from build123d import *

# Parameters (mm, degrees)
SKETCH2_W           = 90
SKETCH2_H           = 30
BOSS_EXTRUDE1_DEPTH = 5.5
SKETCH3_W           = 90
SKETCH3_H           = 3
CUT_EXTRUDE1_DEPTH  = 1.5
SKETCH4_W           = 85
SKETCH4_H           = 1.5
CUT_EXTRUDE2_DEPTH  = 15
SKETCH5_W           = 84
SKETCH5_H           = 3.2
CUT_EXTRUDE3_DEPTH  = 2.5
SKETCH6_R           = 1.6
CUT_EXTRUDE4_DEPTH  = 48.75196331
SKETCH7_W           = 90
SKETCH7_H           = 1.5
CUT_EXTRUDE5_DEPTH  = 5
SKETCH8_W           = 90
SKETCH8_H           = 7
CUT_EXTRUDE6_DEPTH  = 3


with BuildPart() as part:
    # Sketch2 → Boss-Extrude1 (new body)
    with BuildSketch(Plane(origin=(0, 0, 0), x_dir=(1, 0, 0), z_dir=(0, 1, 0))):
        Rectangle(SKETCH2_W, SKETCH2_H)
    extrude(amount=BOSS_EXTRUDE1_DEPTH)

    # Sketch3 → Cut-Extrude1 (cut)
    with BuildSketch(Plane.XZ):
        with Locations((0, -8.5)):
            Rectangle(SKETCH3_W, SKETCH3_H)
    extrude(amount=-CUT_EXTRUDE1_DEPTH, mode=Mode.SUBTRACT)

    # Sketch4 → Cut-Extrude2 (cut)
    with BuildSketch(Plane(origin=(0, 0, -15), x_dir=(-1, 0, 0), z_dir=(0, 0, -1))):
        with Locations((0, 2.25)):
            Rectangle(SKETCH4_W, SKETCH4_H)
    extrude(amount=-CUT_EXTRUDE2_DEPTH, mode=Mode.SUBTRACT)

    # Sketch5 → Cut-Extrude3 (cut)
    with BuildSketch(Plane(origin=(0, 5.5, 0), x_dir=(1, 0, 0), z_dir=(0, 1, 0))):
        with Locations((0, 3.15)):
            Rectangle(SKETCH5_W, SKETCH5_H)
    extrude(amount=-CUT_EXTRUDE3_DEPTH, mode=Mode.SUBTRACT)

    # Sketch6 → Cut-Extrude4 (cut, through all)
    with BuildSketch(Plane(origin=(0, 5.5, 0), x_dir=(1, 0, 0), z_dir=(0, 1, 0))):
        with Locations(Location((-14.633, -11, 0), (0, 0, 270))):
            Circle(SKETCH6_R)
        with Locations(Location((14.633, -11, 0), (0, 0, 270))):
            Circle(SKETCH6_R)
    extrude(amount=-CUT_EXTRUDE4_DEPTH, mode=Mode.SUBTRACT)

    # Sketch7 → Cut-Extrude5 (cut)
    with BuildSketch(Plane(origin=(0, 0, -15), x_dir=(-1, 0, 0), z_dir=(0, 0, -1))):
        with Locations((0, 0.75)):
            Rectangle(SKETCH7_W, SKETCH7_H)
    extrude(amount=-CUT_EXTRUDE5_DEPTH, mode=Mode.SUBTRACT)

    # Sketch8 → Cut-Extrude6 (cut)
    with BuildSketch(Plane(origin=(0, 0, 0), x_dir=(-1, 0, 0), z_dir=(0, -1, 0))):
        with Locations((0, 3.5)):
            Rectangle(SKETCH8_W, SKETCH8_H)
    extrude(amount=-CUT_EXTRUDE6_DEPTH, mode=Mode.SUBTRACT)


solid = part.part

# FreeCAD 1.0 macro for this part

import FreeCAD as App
import Part
import Sketcher


def add_polygon(sketch, points):
    """Adds a closed chain of lines whose ends are joined by coincident constraints."""
    first, n = sketch.GeometryCount, len(points)
    for a, b in zip(points, points[1:] + points[:1]):
        sketch.addGeometry(Part.LineSegment(App.Vector(*a, 0), App.Vector(*b, 0)), False)
    for i in range(n):
        sketch.addConstraint(Sketcher.Constraint("Coincident", first + i, 2, first + (i + 1) % n, 1))

doc = App.newDocument("Part")
body = doc.addObject("PartDesign::Body", "Body")

sketch1 = body.newObject("Sketcher::SketchObject", "Sketch")
sketch1.AttachmentSupport = (doc.getObject("XZ_Plane"), [""])
sketch1.MapMode = "FlatFace"
add_polygon(sketch1, [(-45, -15), (-45, 15), (45, 15), (45, -15)])
sketch1.addConstraint([
    Sketcher.Constraint("Vertical", 0),
    Sketcher.Constraint("Horizontal", 1),
    Sketcher.Constraint("Vertical", 2),
    Sketcher.Constraint("Horizontal", 3),
    Sketcher.Constraint("Symmetric", 0, 2, 2, 2, -1, 1),
    Sketcher.Constraint("DistanceX", 1, 1, 1, 2, 90.0),
    Sketcher.Constraint("DistanceY", 0, 1, 0, 2, 30.0),
])
pad1 = body.newObject("PartDesign::Pad", "Pad")
pad1.Profile = sketch1
pad1.Length = 5.5
pad1.Reversed = True

sketch2 = body.newObject("Sketcher::SketchObject", "Sketch001")
sketch2.AttachmentSupport = (doc.getObject("XZ_Plane"), [""])
sketch2.MapMode = "FlatFace"
add_polygon(sketch2, [(-45, -7), (-45, -10), (45, -10), (45, -7)])
sketch2.addConstraint([
    Sketcher.Constraint("Vertical", 0),
    Sketcher.Constraint("Horizontal", 1),
    Sketcher.Constraint("Vertical", 2),
    Sketcher.Constraint("Horizontal", 3),
    Sketcher.Constraint("DistanceX", 1, 1, 1, 2, 90.0),
    Sketcher.Constraint("DistanceY", 0, 2, 0, 1, 3.0),
    Sketcher.Constraint("DistanceX", 0, 2, -1, 1, 45.0),
    Sketcher.Constraint("DistanceY", 0, 2, -1, 1, 10.0),
])
pocket1 = body.newObject("PartDesign::Pocket", "Pocket")
pocket1.Profile = sketch2
pocket1.Length = 1.5

sketch3 = body.newObject("Sketcher::SketchObject", "Sketch002")
sketch3.AttachmentSupport = (doc.getObject("XY_Plane"), [""])
sketch3.MapMode = "FlatFace"
sketch3.AttachmentOffset = App.Placement(App.Vector(0, 0, -15), App.Rotation())
add_polygon(sketch3, [(42.5, 3), (42.5, 1.5), (-42.5, 1.5), (-42.5, 3)])
sketch3.addConstraint([
    Sketcher.Constraint("Vertical", 0),
    Sketcher.Constraint("Horizontal", 1),
    Sketcher.Constraint("Vertical", 2),
    Sketcher.Constraint("Horizontal", 3),
    Sketcher.Constraint("DistanceX", 1, 2, 1, 1, 85.0),
    Sketcher.Constraint("DistanceY", 0, 2, 0, 1, 1.5),
    Sketcher.Constraint("DistanceY", -1, 1, 2, 2, 3.0),
    Sketcher.Constraint("DistanceX", -1, 1, 0, 2, 42.5),
])
pocket2 = body.newObject("PartDesign::Pocket", "Pocket001")
pocket2.Profile = sketch3
pocket2.Length = 15
pocket2.Reversed = True

sketch4 = body.newObject("Sketcher::SketchObject", "Sketch003")
sketch4.AttachmentSupport = (doc.getObject("XZ_Plane"), [""])
sketch4.MapMode = "FlatFace"
sketch4.AttachmentOffset = App.Placement(App.Vector(0, 0, -5.5), App.Rotation())
add_polygon(sketch4, [(-42, -4.8), (-42, -1.6), (42, -1.6), (42, -4.8)])
sketch4.addConstraint([
    Sketcher.Constraint("Vertical", 0),
    Sketcher.Constraint("Horizontal", 1),
    Sketcher.Constraint("Vertical", 2),
    Sketcher.Constraint("Horizontal", 3),
    Sketcher.Constraint("DistanceX", 1, 1, 1, 2, 84.0),
    Sketcher.Constraint("DistanceY", 0, 1, 0, 2, 3.2),
    Sketcher.Constraint("DistanceX", 0, 2, -1, 1, 42.0),
    Sketcher.Constraint("DistanceY", 0, 2, -1, 1, 1.55),
])
pocket3 = body.newObject("PartDesign::Pocket", "Pocket002")
pocket3.Profile = sketch4
pocket3.Length = 2.5
pocket3.Reversed = True

sketch5 = body.newObject("Sketcher::SketchObject", "Sketch004")
sketch5.AttachmentSupport = (doc.getObject("XZ_Plane"), [""])
sketch5.MapMode = "FlatFace"
sketch5.AttachmentOffset = App.Placement(App.Vector(0, 0, -5.5), App.Rotation())
sketch5.addGeometry([
    Part.Circle(App.Vector(-14.6, 11, 0), App.Vector(0, 0, 1), 1.6),
    Part.Circle(App.Vector(14.6, 11, 0), App.Vector(0, 0, 1), 1.6),
], False)
sketch5.addConstraint([
    Sketcher.Constraint("Equal", 0, 1),
    Sketcher.Constraint("Symmetric", 0, 3, 1, 3, -2),
    Sketcher.Constraint("Diameter", 0, 3.2),
    Sketcher.Constraint("DistanceY", -1, 1, 0, 3, 11.0),
    Sketcher.Constraint("DistanceX", 0, 3, -1, 1, 14.633),
])
pocket4 = body.newObject("PartDesign::Pocket", "Pocket003")
pocket4.Profile = sketch5
pocket4.Type = "ThroughAll"
pocket4.Reversed = True

sketch6 = body.newObject("Sketcher::SketchObject", "Sketch005")
sketch6.AttachmentSupport = (doc.getObject("XY_Plane"), [""])
sketch6.MapMode = "FlatFace"
sketch6.AttachmentOffset = App.Placement(App.Vector(0, 0, -15), App.Rotation())
add_polygon(sketch6, [(45, 1.5), (45, 0), (-45, 0), (-45, 1.5)])
sketch6.addConstraint([
    Sketcher.Constraint("Vertical", 0),
    Sketcher.Constraint("Horizontal", 1),
    Sketcher.Constraint("Vertical", 2),
    Sketcher.Constraint("Horizontal", 3),
    Sketcher.Constraint("Symmetric", 0, 2, 1, 2, -1, 1),
    Sketcher.Constraint("DistanceX", 1, 2, 1, 1, 90.0),
    Sketcher.Constraint("DistanceY", 0, 2, 0, 1, 1.5),
])
pocket5 = body.newObject("PartDesign::Pocket", "Pocket004")
pocket5.Profile = sketch6
pocket5.Length = 5
pocket5.Reversed = True

sketch7 = body.newObject("Sketcher::SketchObject", "Sketch006")
sketch7.AttachmentSupport = (doc.getObject("XZ_Plane"), [""])
sketch7.MapMode = "FlatFace"
add_polygon(sketch7, [(45, -7), (45, 0), (-45, 0), (-45, -7)])
sketch7.addConstraint([
    Sketcher.Constraint("Vertical", 0),
    Sketcher.Constraint("Horizontal", 1),
    Sketcher.Constraint("Vertical", 2),
    Sketcher.Constraint("Horizontal", 3),
    Sketcher.Constraint("Symmetric", 0, 2, 1, 2, -1, 1),
    Sketcher.Constraint("DistanceX", 1, 2, 1, 1, 90.0),
    Sketcher.Constraint("DistanceY", 0, 1, 0, 2, 7.0),
])
pocket6 = body.newObject("PartDesign::Pocket", "Pocket005")
pocket6.Profile = sketch7
pocket6.Length = 3

doc.recompute()
